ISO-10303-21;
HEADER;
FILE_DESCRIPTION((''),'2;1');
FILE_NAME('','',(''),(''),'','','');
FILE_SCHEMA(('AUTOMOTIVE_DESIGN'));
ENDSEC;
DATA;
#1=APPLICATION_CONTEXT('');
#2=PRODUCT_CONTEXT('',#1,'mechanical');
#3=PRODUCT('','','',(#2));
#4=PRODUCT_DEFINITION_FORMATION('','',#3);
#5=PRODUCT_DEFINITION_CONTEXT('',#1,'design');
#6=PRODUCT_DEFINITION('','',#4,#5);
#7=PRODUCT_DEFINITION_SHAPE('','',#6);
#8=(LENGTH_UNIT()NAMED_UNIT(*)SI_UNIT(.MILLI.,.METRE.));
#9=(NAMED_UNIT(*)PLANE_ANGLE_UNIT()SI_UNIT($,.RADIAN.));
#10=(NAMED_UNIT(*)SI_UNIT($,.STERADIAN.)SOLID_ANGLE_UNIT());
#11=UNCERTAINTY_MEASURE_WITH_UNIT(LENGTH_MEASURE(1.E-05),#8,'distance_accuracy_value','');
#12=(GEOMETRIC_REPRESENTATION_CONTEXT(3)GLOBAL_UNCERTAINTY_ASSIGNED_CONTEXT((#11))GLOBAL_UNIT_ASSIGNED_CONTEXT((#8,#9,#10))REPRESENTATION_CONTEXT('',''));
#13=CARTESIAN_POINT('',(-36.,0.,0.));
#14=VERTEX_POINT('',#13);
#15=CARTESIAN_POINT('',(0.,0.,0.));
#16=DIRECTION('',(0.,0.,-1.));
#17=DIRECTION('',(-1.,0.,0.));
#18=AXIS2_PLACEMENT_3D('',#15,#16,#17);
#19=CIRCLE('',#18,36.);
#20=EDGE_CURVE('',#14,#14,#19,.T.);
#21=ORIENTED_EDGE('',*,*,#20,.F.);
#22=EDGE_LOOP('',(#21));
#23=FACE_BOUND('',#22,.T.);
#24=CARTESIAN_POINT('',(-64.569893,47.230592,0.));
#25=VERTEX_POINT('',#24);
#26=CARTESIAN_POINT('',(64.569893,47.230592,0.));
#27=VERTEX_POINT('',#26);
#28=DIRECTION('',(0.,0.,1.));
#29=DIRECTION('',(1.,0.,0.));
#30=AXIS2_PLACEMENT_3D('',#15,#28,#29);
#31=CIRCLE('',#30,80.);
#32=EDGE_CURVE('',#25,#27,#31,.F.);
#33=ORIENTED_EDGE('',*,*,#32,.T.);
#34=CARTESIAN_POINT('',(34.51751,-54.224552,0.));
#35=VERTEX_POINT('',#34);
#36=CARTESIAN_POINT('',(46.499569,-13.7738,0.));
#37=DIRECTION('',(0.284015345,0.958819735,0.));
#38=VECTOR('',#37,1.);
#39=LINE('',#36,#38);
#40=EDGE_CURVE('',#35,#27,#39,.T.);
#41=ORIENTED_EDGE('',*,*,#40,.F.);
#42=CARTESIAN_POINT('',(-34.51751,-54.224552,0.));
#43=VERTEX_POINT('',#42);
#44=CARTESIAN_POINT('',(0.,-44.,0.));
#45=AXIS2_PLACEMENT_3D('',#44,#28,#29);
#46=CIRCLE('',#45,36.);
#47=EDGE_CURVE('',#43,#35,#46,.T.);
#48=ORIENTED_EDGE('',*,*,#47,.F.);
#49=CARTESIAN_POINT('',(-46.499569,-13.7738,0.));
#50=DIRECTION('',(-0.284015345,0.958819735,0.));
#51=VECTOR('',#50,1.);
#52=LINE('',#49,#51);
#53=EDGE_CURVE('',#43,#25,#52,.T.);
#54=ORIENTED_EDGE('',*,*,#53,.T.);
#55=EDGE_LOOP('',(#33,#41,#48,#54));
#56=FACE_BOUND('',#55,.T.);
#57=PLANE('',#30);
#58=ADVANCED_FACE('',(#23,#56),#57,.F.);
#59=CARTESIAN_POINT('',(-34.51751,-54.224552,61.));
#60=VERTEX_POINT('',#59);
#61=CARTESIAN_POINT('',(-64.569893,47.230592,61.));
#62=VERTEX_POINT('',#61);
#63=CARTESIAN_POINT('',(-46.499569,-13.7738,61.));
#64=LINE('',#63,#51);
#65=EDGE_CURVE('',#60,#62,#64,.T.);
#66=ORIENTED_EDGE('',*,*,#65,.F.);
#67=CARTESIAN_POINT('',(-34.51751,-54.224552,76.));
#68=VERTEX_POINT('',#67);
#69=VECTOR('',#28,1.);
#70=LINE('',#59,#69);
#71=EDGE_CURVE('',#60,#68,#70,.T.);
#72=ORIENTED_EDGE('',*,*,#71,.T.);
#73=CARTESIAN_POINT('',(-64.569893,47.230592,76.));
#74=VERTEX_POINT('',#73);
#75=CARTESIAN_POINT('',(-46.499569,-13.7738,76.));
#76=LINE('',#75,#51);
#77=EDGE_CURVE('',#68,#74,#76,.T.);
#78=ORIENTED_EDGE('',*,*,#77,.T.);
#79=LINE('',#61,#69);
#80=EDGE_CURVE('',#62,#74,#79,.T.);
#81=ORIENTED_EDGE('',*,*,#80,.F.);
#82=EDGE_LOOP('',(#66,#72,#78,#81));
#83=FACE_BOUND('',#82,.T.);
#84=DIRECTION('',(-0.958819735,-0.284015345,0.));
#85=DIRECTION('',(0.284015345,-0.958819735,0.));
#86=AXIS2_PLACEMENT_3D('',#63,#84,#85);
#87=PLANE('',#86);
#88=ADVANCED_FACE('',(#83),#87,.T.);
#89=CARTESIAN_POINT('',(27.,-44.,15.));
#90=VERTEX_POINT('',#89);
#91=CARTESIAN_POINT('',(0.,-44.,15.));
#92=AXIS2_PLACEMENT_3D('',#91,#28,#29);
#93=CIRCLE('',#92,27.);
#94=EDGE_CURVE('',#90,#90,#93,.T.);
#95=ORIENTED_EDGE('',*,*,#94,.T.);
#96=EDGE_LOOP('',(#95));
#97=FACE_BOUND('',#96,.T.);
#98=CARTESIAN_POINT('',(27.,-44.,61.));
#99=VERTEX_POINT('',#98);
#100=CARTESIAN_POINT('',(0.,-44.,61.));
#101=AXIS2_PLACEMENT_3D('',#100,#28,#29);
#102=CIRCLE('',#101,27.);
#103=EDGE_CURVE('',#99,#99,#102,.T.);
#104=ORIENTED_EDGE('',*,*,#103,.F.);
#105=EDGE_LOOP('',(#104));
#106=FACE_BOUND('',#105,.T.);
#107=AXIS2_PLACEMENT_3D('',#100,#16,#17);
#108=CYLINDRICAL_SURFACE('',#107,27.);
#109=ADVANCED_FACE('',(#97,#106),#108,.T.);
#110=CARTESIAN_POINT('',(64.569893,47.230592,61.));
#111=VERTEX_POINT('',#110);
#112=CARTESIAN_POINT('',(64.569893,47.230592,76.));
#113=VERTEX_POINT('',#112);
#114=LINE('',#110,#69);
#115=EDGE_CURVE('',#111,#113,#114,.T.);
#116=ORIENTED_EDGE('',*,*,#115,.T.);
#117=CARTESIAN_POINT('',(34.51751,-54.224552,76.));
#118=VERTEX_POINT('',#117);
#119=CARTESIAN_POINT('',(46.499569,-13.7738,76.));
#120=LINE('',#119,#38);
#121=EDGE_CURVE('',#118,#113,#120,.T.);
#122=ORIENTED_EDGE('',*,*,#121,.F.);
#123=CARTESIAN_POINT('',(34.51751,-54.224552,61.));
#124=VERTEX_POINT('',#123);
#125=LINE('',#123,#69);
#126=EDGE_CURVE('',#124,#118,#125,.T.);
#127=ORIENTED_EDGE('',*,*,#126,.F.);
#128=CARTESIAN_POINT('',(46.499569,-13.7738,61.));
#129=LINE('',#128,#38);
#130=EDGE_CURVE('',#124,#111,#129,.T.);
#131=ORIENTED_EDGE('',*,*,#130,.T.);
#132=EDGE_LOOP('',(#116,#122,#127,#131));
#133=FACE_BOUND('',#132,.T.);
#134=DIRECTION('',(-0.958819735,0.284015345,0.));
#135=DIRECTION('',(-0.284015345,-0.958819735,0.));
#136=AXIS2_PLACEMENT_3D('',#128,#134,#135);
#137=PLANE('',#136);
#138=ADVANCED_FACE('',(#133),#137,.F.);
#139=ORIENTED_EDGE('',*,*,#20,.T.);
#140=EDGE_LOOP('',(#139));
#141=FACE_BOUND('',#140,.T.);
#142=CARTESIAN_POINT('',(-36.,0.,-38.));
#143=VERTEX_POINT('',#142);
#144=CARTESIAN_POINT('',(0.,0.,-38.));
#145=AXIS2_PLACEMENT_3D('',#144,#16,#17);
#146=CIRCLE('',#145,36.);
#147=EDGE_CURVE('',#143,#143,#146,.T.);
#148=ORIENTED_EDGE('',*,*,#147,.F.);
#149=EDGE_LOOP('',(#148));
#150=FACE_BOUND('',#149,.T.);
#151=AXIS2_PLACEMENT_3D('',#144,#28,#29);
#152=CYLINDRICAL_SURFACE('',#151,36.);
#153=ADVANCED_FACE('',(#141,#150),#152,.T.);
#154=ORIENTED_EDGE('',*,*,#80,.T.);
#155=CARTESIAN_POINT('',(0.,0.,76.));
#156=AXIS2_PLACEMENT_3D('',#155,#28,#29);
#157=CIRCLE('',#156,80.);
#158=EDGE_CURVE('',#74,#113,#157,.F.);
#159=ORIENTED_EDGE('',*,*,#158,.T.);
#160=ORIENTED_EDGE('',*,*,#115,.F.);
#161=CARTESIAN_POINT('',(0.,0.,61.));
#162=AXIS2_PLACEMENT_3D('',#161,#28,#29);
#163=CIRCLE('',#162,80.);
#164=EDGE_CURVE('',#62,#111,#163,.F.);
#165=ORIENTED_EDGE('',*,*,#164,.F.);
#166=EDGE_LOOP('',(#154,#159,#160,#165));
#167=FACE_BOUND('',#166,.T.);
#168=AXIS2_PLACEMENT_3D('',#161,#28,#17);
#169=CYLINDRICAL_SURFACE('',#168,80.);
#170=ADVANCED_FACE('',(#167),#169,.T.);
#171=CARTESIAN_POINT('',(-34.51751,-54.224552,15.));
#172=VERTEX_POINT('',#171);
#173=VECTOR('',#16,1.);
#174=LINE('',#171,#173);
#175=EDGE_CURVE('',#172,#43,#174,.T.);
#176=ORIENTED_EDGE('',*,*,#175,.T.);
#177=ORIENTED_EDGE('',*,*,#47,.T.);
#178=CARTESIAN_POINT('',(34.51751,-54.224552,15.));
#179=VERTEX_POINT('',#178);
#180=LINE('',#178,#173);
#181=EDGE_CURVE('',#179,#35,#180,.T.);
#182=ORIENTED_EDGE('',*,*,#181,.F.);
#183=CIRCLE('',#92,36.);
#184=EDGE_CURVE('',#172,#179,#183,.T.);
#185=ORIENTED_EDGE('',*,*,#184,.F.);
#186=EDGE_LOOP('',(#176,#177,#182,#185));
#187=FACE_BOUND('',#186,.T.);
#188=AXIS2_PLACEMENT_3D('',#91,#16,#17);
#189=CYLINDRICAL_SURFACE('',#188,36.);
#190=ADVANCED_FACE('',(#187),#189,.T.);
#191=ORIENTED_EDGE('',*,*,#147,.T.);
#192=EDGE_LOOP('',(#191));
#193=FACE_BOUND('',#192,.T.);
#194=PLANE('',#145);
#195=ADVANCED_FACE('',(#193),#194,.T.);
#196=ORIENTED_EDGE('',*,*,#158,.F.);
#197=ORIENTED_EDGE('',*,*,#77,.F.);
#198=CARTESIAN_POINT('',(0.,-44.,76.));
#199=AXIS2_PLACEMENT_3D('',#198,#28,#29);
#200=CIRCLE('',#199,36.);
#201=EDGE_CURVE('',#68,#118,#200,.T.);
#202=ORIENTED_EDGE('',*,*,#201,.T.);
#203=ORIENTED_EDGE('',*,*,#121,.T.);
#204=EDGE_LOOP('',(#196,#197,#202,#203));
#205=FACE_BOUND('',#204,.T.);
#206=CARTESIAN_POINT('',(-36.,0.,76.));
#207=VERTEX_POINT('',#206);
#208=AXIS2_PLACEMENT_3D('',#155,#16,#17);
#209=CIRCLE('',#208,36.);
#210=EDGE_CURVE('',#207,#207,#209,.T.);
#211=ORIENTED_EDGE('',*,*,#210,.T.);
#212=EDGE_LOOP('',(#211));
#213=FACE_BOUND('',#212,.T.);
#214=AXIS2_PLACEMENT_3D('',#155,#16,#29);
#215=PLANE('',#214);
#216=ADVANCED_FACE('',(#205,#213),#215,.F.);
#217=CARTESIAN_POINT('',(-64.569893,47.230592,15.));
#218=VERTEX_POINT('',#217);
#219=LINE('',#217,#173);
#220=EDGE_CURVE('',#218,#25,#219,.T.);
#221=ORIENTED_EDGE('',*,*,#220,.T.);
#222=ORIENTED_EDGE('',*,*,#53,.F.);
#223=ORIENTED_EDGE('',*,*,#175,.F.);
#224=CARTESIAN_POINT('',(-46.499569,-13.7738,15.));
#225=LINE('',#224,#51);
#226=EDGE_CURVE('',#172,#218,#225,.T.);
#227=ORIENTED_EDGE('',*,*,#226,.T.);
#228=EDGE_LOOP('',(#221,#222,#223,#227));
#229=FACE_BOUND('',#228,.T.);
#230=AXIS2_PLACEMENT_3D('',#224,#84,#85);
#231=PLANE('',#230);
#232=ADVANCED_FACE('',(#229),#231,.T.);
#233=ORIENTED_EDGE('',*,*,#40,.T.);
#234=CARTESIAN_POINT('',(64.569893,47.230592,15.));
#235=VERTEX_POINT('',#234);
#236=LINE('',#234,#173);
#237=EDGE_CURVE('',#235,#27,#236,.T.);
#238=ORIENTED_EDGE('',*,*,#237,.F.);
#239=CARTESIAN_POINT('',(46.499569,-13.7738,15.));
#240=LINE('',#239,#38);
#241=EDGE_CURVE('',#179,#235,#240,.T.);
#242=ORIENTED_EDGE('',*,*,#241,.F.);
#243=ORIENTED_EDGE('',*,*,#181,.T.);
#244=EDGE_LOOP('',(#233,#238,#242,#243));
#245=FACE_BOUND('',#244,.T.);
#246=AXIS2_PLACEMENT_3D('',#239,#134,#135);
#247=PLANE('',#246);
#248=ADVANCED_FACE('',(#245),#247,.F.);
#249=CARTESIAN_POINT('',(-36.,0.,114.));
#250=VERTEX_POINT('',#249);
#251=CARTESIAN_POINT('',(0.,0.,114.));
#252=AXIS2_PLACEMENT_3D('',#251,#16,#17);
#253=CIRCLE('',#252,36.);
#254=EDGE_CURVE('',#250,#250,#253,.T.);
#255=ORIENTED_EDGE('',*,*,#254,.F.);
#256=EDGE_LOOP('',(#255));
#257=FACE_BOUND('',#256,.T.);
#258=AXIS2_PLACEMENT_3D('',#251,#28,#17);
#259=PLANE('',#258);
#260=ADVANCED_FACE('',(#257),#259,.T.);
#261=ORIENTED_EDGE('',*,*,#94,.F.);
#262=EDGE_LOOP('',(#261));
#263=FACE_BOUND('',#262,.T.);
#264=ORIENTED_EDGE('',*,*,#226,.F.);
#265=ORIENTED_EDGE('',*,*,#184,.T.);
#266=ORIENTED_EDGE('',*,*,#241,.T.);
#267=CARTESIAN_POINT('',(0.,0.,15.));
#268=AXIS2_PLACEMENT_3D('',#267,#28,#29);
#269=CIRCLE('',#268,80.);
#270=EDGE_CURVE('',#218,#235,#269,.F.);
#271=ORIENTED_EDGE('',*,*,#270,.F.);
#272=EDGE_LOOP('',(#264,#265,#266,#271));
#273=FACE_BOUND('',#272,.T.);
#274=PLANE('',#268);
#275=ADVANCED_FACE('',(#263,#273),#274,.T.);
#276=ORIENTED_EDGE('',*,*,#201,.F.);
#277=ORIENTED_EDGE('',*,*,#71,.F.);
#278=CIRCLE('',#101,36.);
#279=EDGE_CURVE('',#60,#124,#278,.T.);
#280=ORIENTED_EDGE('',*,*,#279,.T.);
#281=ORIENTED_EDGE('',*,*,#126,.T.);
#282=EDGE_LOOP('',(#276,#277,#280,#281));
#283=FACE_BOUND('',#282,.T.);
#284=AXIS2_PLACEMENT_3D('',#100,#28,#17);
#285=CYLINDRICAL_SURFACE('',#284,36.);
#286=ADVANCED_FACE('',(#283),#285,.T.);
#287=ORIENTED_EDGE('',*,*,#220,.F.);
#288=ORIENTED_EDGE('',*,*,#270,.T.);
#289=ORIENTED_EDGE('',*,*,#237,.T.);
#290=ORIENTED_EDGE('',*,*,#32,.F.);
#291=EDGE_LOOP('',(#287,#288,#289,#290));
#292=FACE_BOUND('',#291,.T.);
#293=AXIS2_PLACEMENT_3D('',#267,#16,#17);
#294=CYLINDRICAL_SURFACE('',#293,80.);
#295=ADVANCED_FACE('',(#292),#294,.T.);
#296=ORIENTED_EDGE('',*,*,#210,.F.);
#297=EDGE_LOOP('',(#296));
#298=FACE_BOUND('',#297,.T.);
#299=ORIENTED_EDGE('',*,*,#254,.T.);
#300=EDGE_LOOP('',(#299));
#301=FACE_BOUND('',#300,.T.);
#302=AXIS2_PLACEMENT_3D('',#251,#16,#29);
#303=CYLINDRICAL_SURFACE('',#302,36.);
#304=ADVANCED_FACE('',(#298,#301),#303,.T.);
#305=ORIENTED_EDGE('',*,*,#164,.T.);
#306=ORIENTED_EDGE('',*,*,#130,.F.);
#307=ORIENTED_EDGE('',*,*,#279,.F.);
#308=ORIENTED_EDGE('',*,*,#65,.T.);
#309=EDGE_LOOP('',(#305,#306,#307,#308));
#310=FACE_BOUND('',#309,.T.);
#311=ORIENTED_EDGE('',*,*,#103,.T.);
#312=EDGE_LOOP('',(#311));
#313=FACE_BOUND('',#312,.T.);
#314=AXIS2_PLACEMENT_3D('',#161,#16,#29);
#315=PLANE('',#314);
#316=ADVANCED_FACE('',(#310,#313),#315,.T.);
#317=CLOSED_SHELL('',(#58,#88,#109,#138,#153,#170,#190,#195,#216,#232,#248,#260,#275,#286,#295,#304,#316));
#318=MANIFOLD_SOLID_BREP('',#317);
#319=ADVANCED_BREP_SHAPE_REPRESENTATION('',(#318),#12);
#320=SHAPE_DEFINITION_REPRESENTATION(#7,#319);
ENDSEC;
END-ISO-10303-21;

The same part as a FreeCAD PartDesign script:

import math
import FreeCAD as App
import Part
import Sketcher
Q = App.Units.Quantity

doc = App.newDocument("Part")
body = doc.addObject("PartDesign::Body", "Body")

# Sketch on XY plane
sketch1 = body.newObject("Sketcher::SketchObject", "Sketch")
sketch1.AttachmentSupport = (doc.getObject("XY_Plane"), [""])
sketch1.MapMode = "FlatFace"
sketch1.addGeometry([
    Part.LineSegment(App.Vector(-65, 47, 0), App.Vector(-35, -54, 0)),
    Part.ArcOfCircle(Part.Circle(App.Vector(0, -44, 0), App.Vector(0, 0, 1), 36), math.radians(-164), math.radians(-16)),
    Part.LineSegment(App.Vector(35, -54, 0), App.Vector(65, 47, 0)),
    Part.ArcOfCircle(Part.Circle(App.Vector(0, 0, 0), App.Vector(0, 0, 1), 80), math.radians(36), math.radians(144)),
], False)
sketch1.addConstraint([
    Sketcher.Constraint("Tangent", 0, 2, 1, 1),
    Sketcher.Constraint("Tangent", 1, 2, 2, 1),
    Sketcher.Constraint("Coincident", 2, 2, 3, 1),
    Sketcher.Constraint("Coincident", 3, 2, 0, 1),
    Sketcher.Constraint("Coincident", 3, 3, -1, 1),
    Sketcher.Constraint("Symmetric", 0, 2, 1, 2, -2),
    Sketcher.Constraint("Radius", 1, 36.0),
    Sketcher.Constraint("Radius", 3, 80.0),
    Sketcher.Constraint("DistanceY", 1, 3, -1, 1, 44.0),
    Sketcher.Constraint("Angle", 0, Q("-73.5 deg")),
])
pad1 = body.newObject("PartDesign::Pad", "Pad")
pad1.Profile = sketch1
pad1.Length = 15

# Sketch on XY plane
sketch2 = body.newObject("Sketcher::SketchObject", "Sketch001")
sketch2.AttachmentSupport = (doc.getObject("XY_Plane"), [""])
sketch2.MapMode = "FlatFace"
sketch2.AttachmentOffset = App.Placement(App.Vector(0, 0, 15), App.Rotation())
sketch2.addGeometry(Part.Circle(App.Vector(0, -44, 0), App.Vector(0, 0, 1), 27), False)
sketch2.addConstraint([
    Sketcher.Constraint("PointOnObject", 0, 3, -2),
    Sketcher.Constraint("Diameter", 0, 54.0),
    Sketcher.Constraint("DistanceY", 0, 3, -1, 1, 44.0),
])
pad2 = body.newObject("PartDesign::Pad", "Pad001")
pad2.Profile = sketch2
pad2.Length = 46

# Sketch on XY plane
sketch3 = body.newObject("Sketcher::SketchObject", "Sketch002")
sketch3.AttachmentSupport = (doc.getObject("XY_Plane"), [""])
sketch3.MapMode = "FlatFace"
sketch3.addGeometry(Part.Circle(App.Vector(0, 0, 0), App.Vector(0, 0, 1), 36), False)
sketch3.addConstraint([
    Sketcher.Constraint("Coincident", 0, 3, -1, 1),
    Sketcher.Constraint("Diameter", 0, 72.0),
])
pad3 = body.newObject("PartDesign::Pad", "Pad002")
pad3.Profile = sketch3
pad3.Length = 38
pad3.Reversed = True
body2 = doc.addObject("PartDesign::Body", "Body001")
doc.recompute()

body2.BaseFeature = body
doc.recompute()

mirroring = doc.addObject("Part::Mirroring", "Mirroring")
mirroring.Source = body
mirroring.Base = App.Vector(0, 0, 38)
mirroring.Normal = App.Vector(0, 0, 1)
body3 = doc.addObject("PartDesign::Body", "Body002")
body3.BaseFeature = mirroring
boolean = body2.newObject("PartDesign::Boolean", "Boolean")
boolean.Type = "Fuse"
boolean.addObjects([body3])
doc.recompute()
mirroring.Visibility = False

doc.recompute()
